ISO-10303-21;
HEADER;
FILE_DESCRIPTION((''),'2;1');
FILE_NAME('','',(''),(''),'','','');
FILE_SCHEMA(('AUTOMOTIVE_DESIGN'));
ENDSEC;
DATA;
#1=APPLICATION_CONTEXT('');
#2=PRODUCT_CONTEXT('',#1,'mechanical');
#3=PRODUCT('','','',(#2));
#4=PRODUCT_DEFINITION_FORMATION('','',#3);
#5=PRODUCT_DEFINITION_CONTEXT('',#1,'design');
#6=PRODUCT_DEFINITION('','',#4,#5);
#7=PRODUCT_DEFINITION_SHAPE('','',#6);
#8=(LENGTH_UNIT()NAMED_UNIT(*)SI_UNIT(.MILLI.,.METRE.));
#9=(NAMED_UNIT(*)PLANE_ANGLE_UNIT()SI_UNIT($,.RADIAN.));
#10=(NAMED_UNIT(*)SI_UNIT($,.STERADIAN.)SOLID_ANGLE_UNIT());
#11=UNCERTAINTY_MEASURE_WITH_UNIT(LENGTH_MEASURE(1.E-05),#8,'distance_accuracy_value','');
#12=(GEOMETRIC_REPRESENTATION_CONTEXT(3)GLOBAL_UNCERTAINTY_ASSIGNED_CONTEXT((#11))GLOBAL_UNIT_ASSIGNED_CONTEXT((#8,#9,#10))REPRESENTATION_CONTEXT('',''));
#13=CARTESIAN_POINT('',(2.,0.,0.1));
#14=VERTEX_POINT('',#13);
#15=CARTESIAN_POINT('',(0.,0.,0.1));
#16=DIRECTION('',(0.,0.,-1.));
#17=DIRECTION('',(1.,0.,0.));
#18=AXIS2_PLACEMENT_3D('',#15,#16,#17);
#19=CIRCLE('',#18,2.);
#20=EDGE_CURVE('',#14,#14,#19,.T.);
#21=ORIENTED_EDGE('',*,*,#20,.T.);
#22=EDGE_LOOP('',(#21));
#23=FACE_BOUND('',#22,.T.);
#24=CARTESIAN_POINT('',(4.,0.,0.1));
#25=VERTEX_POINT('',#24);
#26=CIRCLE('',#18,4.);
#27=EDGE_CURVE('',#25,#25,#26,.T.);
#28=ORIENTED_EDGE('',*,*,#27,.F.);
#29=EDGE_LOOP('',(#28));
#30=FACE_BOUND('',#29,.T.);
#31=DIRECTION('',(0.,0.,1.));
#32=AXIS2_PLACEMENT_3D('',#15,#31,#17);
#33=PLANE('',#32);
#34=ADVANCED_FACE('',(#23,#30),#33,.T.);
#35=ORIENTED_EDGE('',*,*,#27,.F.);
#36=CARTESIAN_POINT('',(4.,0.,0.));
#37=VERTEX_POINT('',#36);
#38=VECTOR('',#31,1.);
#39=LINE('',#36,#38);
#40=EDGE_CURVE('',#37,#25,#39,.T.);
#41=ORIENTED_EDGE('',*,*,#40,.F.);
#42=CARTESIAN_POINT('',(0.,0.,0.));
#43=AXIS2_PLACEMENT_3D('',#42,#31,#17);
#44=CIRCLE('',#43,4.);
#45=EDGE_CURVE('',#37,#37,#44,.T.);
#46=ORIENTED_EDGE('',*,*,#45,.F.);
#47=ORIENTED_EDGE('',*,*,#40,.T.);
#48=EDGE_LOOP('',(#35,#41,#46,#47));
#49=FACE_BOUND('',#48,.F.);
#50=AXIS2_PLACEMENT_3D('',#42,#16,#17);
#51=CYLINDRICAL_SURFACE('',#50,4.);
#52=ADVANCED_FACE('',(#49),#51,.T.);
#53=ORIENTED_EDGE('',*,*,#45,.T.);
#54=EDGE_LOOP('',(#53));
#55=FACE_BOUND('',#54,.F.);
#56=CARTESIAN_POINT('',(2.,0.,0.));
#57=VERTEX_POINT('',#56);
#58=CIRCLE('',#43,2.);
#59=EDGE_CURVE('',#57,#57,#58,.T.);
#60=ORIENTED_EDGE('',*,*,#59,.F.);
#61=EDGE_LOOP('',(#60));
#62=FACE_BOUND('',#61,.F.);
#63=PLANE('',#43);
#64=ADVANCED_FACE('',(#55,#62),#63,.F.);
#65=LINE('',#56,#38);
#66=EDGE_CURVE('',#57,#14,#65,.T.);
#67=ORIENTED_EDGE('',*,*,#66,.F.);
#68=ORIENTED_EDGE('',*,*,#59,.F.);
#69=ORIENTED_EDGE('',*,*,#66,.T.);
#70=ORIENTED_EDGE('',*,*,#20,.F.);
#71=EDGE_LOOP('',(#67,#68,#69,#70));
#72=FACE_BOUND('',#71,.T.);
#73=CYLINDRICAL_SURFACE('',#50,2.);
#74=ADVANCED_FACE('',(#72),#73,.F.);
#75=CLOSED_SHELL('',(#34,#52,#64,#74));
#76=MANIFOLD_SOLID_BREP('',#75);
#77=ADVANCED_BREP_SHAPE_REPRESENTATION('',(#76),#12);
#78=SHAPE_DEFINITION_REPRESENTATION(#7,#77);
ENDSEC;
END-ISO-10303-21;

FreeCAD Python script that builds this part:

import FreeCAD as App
import Part
import Sketcher

V = App.Vector

doc = App.newDocument("Part")
body = doc.addObject("PartDesign::Body", "Body")

# Sketch on XY plane
sketch1 = body.newObject("Sketcher::SketchObject", "Sketch")
sketch1.AttachmentSupport = (doc.getObject("XY_Plane"), [""])
sketch1.MapMode = "FlatFace"
sketch1.addGeometry([
    Part.Circle(V(0, 0, 0), V(0, 0, 1), 4),
    Part.Circle(V(0, 0, 0), V(0, 0, 1), 2),
], False)
sketch1.addConstraint([
    Sketcher.Constraint("Coincident", 0, 3, -1, 1),
    Sketcher.Constraint("Coincident", 1, 3, -1, 1),
    Sketcher.Constraint("Diameter", 0, 8.0),
    Sketcher.Constraint("Diameter", 1, 4.0),
])
pad1 = body.newObject("PartDesign::Pad", "Pad")
pad1.Profile = sketch1
pad1.Length = 0.1

doc.recompute()
